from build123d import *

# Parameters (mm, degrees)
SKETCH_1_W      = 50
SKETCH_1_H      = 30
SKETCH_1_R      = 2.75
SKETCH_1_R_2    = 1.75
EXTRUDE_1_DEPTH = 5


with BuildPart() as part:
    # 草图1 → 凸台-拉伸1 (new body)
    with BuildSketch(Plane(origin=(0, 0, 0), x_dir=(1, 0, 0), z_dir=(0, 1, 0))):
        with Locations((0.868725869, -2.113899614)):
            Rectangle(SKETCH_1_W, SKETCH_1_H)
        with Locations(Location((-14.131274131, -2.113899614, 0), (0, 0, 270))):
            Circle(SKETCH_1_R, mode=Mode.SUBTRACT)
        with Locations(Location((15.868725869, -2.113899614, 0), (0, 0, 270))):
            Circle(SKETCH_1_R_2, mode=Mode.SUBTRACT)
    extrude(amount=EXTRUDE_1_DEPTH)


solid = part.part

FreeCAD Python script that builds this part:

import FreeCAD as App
import Part
import Sketcher


def add_polygon(sketch, points):
    """Adds a closed chain of lines whose ends are joined by coincident constraints."""
    first, n = sketch.GeometryCount, len(points)
    for a, b in zip(points, points[1:] + points[:1]):
        sketch.addGeometry(Part.LineSegment(App.Vector(*a, 0), App.Vector(*b, 0)), False)
    for i in range(n):
        sketch.addConstraint(Sketcher.Constraint("Coincident", first + i, 2, first + (i + 1) % n, 1))

doc = App.newDocument("Part")
body = doc.addObject("PartDesign::Body", "Body")

# Sketch on XZ plane
sketch1 = doc.addObject("Sketcher::SketchObject", "Sketch")
body.addObject(sketch1)
sketch1.AttachmentSupport = (doc.XZ_Plane, [""])
sketch1.MapMode = "FlatFace"
add_polygon(sketch1, [(-24.1, -12.9), (-24.1, 17.1), (25.9, 17.1), (25.9, -12.9)])  # lines 0-3
sketch1.addGeometry(Part.Circle(App.Vector(-14.1, 2.1, 0), App.Vector(0, 0, 1), 2.8), False)  # 4
sketch1.addGeometry(Part.Circle(App.Vector(15.9, 2.1, 0), App.Vector(0, 0, 1), 1.8), False)  # 5
sketch1.addConstraint(Sketcher.Constraint("Vertical", 0))
sketch1.addConstraint(Sketcher.Constraint("Horizontal", 1))
sketch1.addConstraint(Sketcher.Constraint("Vertical", 2))
sketch1.addConstraint(Sketcher.Constraint("Horizontal", 3))
sketch1.addConstraint(Sketcher.Constraint("Horizontal", 4, 3, 5, 3))
sketch1.addConstraint(Sketcher.Constraint("Diameter", 4, 5.5))
sketch1.addConstraint(Sketcher.Constraint("Diameter", 5, 3.5))
sketch1.addConstraint(Sketcher.Constraint("DistanceX", 1, 1, 1, 2, 50.0))
sketch1.addConstraint(Sketcher.Constraint("DistanceY", 0, 1, 0, 2, 30.0))
sketch1.addConstraint(Sketcher.Constraint("DistanceX", 4, 3, 5, 3, 30.0))
sketch1.addConstraint(Sketcher.Constraint("DistanceX", 0, 2, 4, 3, 10.0))
sketch1.addConstraint(Sketcher.Constraint("DistanceY", 4, 3, 0, 2, 15.0))
sketch1.addConstraint(Sketcher.Constraint("DistanceY", -1, 1, 4, 3, 2.1139))
sketch1.addConstraint(Sketcher.Constraint("DistanceX", 4, 3, -1, 1, 14.131274))
pad1 = doc.addObject("PartDesign::Pad", "Pad")
body.addObject(pad1)
pad1.Profile = sketch1
pad1.Length = 5
pad1.Reversed = True

doc.recompute()
